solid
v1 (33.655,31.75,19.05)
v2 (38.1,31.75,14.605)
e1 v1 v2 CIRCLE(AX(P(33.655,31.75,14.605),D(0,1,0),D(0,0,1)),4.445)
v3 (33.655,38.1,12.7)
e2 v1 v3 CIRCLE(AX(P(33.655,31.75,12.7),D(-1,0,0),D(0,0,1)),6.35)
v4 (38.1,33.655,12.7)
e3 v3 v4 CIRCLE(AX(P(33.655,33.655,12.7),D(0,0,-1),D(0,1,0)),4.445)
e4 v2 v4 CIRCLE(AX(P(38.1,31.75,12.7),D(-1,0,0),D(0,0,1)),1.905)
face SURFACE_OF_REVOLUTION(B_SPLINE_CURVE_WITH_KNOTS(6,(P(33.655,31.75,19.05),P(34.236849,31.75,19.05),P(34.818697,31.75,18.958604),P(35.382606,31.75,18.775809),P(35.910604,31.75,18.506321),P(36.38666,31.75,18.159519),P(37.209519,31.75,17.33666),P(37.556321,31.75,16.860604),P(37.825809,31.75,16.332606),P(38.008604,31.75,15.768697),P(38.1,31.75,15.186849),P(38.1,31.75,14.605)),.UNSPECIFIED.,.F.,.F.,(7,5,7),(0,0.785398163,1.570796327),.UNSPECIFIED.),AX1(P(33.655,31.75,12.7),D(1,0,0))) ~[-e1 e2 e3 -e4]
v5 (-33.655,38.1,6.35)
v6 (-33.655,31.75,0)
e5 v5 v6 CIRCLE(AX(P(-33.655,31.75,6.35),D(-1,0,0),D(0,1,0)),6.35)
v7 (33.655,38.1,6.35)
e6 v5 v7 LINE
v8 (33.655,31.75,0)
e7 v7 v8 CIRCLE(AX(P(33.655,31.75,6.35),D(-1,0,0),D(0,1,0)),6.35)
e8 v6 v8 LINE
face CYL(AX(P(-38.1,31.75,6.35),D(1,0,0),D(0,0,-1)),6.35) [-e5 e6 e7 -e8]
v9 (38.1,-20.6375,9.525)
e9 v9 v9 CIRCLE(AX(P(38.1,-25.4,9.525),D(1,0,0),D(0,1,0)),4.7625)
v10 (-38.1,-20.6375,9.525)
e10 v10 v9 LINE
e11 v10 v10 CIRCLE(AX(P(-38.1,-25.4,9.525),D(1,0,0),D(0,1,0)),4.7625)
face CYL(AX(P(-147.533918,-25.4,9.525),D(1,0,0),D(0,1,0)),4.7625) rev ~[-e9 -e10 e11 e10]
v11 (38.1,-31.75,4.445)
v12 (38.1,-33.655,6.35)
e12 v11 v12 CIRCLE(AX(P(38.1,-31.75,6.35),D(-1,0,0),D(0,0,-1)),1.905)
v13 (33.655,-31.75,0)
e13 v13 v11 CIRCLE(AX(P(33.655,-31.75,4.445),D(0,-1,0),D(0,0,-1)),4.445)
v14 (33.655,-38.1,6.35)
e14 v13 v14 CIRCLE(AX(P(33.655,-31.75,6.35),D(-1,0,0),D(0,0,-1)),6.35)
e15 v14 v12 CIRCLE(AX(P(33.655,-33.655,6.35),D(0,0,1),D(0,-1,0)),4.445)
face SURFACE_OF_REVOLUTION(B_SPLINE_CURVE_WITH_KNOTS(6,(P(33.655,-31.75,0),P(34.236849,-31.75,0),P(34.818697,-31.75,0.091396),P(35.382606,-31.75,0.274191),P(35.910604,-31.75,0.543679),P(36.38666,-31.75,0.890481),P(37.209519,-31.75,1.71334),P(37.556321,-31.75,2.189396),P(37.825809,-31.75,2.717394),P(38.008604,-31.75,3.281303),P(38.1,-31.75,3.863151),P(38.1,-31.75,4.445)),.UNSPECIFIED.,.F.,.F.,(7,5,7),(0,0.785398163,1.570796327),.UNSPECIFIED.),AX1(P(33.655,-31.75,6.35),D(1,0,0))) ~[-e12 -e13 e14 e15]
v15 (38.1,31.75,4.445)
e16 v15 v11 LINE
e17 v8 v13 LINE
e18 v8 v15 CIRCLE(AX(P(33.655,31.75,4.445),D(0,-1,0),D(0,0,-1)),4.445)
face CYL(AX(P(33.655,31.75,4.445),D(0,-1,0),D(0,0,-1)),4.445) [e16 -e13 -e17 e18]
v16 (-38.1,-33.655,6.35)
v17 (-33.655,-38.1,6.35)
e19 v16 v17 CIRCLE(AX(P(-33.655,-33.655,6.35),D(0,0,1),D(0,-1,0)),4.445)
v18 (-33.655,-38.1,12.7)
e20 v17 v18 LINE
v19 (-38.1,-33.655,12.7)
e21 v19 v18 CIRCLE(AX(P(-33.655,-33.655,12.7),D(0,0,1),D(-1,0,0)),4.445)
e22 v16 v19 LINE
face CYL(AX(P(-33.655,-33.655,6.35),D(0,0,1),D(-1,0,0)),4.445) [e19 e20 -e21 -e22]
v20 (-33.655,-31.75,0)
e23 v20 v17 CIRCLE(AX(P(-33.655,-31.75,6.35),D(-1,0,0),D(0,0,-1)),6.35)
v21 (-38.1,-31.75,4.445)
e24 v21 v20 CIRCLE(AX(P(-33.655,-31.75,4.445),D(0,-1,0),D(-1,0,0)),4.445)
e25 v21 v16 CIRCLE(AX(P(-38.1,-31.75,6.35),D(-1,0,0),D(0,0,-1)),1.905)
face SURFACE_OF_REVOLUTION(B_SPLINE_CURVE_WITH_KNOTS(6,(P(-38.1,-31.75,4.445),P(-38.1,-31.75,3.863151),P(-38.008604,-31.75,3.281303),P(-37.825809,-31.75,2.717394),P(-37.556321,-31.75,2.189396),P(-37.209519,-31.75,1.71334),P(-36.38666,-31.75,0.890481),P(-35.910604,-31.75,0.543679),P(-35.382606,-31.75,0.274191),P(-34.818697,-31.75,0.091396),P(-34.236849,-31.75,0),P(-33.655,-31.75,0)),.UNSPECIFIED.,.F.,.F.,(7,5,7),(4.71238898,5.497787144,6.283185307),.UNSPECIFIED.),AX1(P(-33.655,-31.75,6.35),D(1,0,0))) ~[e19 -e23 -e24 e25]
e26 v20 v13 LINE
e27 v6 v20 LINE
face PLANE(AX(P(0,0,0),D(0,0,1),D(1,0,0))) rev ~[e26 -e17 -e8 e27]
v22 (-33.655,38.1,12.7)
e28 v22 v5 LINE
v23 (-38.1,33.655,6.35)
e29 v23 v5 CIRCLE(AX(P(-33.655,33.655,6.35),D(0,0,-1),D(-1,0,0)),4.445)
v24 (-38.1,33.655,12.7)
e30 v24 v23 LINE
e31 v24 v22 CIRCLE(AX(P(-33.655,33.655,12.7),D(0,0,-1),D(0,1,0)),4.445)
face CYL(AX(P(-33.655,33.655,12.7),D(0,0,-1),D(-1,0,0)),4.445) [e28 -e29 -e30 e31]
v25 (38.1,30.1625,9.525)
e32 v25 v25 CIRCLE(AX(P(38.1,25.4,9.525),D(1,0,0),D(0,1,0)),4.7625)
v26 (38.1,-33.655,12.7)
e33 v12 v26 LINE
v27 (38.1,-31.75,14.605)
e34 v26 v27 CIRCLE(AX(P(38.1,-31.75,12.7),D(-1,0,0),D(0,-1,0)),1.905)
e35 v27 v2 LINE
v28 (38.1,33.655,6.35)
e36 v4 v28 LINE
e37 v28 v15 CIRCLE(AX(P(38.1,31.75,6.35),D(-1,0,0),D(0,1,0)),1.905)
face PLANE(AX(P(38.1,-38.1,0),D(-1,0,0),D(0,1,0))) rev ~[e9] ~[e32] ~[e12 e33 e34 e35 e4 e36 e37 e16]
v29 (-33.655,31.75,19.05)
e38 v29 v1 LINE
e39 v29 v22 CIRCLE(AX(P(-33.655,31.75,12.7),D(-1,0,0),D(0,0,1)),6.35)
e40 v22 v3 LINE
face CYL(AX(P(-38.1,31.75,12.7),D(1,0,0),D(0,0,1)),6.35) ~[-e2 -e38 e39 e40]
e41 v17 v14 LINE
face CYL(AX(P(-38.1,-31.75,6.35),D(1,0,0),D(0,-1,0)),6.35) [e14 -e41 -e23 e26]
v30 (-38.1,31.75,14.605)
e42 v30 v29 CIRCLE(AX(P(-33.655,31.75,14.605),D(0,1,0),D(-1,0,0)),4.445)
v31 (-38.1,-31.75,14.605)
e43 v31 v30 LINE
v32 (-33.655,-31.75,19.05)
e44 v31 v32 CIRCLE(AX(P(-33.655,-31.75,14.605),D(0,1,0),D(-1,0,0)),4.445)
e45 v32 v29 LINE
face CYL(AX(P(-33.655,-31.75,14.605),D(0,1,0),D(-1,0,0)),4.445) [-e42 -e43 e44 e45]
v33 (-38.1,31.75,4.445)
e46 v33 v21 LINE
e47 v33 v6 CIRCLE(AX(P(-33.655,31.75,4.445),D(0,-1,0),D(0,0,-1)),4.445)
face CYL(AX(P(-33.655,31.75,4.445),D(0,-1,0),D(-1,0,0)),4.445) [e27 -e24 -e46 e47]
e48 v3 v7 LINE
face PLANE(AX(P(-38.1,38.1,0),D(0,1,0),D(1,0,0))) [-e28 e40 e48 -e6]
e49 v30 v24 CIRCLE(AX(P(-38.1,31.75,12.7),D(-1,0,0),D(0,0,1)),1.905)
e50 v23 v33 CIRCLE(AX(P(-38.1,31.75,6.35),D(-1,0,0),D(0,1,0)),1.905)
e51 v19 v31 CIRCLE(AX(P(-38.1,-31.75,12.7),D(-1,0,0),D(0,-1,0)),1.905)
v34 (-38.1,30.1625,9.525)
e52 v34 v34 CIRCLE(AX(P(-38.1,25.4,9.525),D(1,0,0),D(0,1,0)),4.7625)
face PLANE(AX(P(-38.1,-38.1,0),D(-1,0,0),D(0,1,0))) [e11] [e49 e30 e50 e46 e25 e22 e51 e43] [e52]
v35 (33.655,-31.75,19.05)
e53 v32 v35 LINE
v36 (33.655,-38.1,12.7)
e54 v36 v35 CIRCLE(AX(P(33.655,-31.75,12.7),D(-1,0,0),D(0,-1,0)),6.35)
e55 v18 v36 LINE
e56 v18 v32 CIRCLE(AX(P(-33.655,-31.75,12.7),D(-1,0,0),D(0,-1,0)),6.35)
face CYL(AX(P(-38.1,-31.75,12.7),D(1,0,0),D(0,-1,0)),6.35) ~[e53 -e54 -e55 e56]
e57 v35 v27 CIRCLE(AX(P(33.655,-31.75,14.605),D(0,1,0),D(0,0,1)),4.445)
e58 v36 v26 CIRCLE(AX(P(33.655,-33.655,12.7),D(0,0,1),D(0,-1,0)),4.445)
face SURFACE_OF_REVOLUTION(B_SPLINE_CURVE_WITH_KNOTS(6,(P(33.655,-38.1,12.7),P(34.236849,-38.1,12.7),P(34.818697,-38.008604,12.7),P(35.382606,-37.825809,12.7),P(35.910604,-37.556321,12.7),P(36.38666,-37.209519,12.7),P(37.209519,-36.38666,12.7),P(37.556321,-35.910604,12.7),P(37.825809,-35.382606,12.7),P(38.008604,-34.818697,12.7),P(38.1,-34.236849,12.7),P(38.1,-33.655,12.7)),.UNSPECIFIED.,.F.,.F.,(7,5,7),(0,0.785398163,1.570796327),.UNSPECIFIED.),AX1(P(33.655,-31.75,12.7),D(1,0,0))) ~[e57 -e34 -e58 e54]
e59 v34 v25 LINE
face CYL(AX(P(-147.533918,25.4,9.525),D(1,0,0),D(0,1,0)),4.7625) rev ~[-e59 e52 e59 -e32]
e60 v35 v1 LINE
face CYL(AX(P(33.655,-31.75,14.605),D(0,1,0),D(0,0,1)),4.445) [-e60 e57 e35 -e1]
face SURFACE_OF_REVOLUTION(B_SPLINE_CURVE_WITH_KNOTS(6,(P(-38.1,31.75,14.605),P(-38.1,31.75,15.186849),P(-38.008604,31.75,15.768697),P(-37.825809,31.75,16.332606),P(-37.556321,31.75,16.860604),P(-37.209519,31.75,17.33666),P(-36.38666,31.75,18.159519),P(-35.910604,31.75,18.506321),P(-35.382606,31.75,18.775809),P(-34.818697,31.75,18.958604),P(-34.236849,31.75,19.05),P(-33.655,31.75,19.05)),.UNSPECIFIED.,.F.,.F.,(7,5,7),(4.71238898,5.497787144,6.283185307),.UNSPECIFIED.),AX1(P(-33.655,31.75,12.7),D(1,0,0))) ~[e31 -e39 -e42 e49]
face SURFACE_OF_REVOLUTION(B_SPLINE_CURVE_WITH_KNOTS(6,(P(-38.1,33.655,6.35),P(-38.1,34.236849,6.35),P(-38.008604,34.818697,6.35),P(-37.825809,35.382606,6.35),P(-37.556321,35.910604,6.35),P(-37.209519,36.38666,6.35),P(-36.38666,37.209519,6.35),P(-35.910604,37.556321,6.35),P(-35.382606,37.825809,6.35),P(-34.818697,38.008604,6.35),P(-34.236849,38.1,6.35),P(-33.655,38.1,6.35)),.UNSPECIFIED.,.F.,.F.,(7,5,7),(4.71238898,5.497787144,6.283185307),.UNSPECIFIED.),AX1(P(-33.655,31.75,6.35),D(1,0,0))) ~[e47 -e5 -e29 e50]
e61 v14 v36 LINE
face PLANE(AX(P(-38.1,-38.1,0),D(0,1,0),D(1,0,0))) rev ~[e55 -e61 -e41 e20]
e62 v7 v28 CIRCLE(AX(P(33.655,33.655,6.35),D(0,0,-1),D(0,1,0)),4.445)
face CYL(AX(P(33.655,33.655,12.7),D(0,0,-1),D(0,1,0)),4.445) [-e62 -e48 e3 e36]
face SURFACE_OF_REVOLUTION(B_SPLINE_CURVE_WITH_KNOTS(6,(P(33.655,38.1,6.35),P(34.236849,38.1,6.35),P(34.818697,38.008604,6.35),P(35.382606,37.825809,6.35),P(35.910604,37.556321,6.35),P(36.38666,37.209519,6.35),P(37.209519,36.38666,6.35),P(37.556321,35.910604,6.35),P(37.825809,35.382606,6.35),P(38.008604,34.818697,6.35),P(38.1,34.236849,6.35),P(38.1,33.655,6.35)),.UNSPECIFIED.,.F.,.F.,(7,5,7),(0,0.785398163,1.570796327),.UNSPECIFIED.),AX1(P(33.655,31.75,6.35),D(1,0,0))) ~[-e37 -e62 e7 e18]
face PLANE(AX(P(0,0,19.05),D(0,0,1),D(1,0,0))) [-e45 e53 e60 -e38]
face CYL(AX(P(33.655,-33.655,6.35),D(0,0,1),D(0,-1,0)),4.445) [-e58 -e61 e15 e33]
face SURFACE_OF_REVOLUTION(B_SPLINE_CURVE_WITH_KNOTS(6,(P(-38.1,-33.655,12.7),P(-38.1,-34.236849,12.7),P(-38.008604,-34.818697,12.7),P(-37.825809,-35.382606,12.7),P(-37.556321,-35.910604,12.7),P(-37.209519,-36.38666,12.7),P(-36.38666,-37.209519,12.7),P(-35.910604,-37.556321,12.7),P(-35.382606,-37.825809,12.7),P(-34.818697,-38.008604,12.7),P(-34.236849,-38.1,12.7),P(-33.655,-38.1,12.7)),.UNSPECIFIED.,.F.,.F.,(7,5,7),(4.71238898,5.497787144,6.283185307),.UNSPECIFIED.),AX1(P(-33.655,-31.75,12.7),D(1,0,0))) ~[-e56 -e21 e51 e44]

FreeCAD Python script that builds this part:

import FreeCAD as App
import Part
import Sketcher
Q = App.Units.Quantity


def edges_at(feature, points):
    """Names of the edges that pass closest to the given points."""
    edges = feature.Shape.Edges
    near = lambda p: min(range(len(edges)), key=lambda i: edges[i].distToShape(Part.Vertex(*p))[0])
    return sorted({f"Edge{near(p) + 1}" for p in points})


def add_polygon(sketch, points):
    """Adds a closed chain of lines whose ends are joined by coincident constraints."""
    first, n = sketch.GeometryCount, len(points)
    for a, b in zip(points, points[1:] + points[:1]):
        sketch.addGeometry(Part.LineSegment(App.Vector(*a, 0), App.Vector(*b, 0)), False)
    for i in range(n):
        sketch.addConstraint(Sketcher.Constraint("Coincident", first + i, 2, first + (i + 1) % n, 1))

doc = App.newDocument("Part")
body = doc.addObject("PartDesign::Body", "Body")

# Sketch on XY plane
sketch1 = body.newObject("Sketcher::SketchObject", "Sketch")
sketch1.AttachmentSupport = (doc.getObject("XY_Plane"), [""])
sketch1.MapMode = "FlatFace"
add_polygon(sketch1, [(-38.1, 38.1), (-38.1, -38.1), (38.1, -38.1), (38.1, 38.1)])  # lines 0-3
sketch1.addConstraint(Sketcher.Constraint("Vertical", 0))
sketch1.addConstraint(Sketcher.Constraint("Horizontal", 1))
sketch1.addConstraint(Sketcher.Constraint("Vertical", 2))
sketch1.addConstraint(Sketcher.Constraint("Horizontal", 3))
sketch1.addConstraint(Sketcher.Constraint("Symmetric", 0, 2, 2, 2, -1, 1))
sketch1.addConstraint(Sketcher.Constraint("Equal", 3, 0))
sketch1.addConstraint(Sketcher.Constraint("DistanceX", 1, 1, 1, 2, Q("3 in")))
pad1 = body.newObject("PartDesign::Pad", "Pad")
pad1.Profile = sketch1
pad1.Length = Q("0.75 in")

# Sketch on YZ plane
sketch2 = body.newObject("Sketcher::SketchObject", "Sketch001")
sketch2.AttachmentSupport = (doc.getObject("YZ_Plane"), [""])
sketch2.MapMode = "FlatFace"
sketch2.AttachmentOffset = App.Placement(App.Vector(0, 0, -1.5 * 25.4), App.Rotation())
sketch2.addGeometry(Part.Circle(App.Vector(25.4, 9.525, 0), App.Vector(0, 0, 1), 4.7625), False)
sketch2.addGeometry(Part.Circle(App.Vector(-25.4, 9.525, 0), App.Vector(0, 0, 1), 4.7625), False)
sketch2.addConstraint(Sketcher.Constraint("Equal", 0, 1))
sketch2.addConstraint(Sketcher.Constraint("Symmetric", 0, 3, 1, 3, -2))
sketch2.addConstraint(Sketcher.Constraint("Diameter", 0, Q("0.375 in")))
sketch2.addConstraint(Sketcher.Constraint("DistanceX", -1, 1, 0, 3, Q("1 in")))
sketch2.addConstraint(Sketcher.Constraint("DistanceY", -1, 1, 0, 3, Q("0.375 in")))
doc.recompute()
hole = body.newObject("PartDesign::Hole", "Hole")
hole.Profile = sketch2
hole.ThreadType = "None"
hole.Diameter = Q("0.375 in")
hole.DepthType = "ThroughAll"
hole.Reversed = True
doc.recompute()

fillet = body.newObject("PartDesign::Fillet", "Fillet")
fillet.Base = (hole, edges_at(hole, [
    (0, -38.1, 19.05),
    (0, -38.1, 0),
    (0, 38.1, 19.05),
    (0, 38.1, 0),
]))
fillet.Radius = Q("0.25 in")
doc.recompute()

fillet2 = body.newObject("PartDesign::Fillet", "Fillet001")
fillet2.Base = (fillet, edges_at(fillet, [(-38.1, 0, 19.05), (38.1, 0, 19.05)]))
fillet2.Radius = Q("0.175 in")

doc.recompute()
